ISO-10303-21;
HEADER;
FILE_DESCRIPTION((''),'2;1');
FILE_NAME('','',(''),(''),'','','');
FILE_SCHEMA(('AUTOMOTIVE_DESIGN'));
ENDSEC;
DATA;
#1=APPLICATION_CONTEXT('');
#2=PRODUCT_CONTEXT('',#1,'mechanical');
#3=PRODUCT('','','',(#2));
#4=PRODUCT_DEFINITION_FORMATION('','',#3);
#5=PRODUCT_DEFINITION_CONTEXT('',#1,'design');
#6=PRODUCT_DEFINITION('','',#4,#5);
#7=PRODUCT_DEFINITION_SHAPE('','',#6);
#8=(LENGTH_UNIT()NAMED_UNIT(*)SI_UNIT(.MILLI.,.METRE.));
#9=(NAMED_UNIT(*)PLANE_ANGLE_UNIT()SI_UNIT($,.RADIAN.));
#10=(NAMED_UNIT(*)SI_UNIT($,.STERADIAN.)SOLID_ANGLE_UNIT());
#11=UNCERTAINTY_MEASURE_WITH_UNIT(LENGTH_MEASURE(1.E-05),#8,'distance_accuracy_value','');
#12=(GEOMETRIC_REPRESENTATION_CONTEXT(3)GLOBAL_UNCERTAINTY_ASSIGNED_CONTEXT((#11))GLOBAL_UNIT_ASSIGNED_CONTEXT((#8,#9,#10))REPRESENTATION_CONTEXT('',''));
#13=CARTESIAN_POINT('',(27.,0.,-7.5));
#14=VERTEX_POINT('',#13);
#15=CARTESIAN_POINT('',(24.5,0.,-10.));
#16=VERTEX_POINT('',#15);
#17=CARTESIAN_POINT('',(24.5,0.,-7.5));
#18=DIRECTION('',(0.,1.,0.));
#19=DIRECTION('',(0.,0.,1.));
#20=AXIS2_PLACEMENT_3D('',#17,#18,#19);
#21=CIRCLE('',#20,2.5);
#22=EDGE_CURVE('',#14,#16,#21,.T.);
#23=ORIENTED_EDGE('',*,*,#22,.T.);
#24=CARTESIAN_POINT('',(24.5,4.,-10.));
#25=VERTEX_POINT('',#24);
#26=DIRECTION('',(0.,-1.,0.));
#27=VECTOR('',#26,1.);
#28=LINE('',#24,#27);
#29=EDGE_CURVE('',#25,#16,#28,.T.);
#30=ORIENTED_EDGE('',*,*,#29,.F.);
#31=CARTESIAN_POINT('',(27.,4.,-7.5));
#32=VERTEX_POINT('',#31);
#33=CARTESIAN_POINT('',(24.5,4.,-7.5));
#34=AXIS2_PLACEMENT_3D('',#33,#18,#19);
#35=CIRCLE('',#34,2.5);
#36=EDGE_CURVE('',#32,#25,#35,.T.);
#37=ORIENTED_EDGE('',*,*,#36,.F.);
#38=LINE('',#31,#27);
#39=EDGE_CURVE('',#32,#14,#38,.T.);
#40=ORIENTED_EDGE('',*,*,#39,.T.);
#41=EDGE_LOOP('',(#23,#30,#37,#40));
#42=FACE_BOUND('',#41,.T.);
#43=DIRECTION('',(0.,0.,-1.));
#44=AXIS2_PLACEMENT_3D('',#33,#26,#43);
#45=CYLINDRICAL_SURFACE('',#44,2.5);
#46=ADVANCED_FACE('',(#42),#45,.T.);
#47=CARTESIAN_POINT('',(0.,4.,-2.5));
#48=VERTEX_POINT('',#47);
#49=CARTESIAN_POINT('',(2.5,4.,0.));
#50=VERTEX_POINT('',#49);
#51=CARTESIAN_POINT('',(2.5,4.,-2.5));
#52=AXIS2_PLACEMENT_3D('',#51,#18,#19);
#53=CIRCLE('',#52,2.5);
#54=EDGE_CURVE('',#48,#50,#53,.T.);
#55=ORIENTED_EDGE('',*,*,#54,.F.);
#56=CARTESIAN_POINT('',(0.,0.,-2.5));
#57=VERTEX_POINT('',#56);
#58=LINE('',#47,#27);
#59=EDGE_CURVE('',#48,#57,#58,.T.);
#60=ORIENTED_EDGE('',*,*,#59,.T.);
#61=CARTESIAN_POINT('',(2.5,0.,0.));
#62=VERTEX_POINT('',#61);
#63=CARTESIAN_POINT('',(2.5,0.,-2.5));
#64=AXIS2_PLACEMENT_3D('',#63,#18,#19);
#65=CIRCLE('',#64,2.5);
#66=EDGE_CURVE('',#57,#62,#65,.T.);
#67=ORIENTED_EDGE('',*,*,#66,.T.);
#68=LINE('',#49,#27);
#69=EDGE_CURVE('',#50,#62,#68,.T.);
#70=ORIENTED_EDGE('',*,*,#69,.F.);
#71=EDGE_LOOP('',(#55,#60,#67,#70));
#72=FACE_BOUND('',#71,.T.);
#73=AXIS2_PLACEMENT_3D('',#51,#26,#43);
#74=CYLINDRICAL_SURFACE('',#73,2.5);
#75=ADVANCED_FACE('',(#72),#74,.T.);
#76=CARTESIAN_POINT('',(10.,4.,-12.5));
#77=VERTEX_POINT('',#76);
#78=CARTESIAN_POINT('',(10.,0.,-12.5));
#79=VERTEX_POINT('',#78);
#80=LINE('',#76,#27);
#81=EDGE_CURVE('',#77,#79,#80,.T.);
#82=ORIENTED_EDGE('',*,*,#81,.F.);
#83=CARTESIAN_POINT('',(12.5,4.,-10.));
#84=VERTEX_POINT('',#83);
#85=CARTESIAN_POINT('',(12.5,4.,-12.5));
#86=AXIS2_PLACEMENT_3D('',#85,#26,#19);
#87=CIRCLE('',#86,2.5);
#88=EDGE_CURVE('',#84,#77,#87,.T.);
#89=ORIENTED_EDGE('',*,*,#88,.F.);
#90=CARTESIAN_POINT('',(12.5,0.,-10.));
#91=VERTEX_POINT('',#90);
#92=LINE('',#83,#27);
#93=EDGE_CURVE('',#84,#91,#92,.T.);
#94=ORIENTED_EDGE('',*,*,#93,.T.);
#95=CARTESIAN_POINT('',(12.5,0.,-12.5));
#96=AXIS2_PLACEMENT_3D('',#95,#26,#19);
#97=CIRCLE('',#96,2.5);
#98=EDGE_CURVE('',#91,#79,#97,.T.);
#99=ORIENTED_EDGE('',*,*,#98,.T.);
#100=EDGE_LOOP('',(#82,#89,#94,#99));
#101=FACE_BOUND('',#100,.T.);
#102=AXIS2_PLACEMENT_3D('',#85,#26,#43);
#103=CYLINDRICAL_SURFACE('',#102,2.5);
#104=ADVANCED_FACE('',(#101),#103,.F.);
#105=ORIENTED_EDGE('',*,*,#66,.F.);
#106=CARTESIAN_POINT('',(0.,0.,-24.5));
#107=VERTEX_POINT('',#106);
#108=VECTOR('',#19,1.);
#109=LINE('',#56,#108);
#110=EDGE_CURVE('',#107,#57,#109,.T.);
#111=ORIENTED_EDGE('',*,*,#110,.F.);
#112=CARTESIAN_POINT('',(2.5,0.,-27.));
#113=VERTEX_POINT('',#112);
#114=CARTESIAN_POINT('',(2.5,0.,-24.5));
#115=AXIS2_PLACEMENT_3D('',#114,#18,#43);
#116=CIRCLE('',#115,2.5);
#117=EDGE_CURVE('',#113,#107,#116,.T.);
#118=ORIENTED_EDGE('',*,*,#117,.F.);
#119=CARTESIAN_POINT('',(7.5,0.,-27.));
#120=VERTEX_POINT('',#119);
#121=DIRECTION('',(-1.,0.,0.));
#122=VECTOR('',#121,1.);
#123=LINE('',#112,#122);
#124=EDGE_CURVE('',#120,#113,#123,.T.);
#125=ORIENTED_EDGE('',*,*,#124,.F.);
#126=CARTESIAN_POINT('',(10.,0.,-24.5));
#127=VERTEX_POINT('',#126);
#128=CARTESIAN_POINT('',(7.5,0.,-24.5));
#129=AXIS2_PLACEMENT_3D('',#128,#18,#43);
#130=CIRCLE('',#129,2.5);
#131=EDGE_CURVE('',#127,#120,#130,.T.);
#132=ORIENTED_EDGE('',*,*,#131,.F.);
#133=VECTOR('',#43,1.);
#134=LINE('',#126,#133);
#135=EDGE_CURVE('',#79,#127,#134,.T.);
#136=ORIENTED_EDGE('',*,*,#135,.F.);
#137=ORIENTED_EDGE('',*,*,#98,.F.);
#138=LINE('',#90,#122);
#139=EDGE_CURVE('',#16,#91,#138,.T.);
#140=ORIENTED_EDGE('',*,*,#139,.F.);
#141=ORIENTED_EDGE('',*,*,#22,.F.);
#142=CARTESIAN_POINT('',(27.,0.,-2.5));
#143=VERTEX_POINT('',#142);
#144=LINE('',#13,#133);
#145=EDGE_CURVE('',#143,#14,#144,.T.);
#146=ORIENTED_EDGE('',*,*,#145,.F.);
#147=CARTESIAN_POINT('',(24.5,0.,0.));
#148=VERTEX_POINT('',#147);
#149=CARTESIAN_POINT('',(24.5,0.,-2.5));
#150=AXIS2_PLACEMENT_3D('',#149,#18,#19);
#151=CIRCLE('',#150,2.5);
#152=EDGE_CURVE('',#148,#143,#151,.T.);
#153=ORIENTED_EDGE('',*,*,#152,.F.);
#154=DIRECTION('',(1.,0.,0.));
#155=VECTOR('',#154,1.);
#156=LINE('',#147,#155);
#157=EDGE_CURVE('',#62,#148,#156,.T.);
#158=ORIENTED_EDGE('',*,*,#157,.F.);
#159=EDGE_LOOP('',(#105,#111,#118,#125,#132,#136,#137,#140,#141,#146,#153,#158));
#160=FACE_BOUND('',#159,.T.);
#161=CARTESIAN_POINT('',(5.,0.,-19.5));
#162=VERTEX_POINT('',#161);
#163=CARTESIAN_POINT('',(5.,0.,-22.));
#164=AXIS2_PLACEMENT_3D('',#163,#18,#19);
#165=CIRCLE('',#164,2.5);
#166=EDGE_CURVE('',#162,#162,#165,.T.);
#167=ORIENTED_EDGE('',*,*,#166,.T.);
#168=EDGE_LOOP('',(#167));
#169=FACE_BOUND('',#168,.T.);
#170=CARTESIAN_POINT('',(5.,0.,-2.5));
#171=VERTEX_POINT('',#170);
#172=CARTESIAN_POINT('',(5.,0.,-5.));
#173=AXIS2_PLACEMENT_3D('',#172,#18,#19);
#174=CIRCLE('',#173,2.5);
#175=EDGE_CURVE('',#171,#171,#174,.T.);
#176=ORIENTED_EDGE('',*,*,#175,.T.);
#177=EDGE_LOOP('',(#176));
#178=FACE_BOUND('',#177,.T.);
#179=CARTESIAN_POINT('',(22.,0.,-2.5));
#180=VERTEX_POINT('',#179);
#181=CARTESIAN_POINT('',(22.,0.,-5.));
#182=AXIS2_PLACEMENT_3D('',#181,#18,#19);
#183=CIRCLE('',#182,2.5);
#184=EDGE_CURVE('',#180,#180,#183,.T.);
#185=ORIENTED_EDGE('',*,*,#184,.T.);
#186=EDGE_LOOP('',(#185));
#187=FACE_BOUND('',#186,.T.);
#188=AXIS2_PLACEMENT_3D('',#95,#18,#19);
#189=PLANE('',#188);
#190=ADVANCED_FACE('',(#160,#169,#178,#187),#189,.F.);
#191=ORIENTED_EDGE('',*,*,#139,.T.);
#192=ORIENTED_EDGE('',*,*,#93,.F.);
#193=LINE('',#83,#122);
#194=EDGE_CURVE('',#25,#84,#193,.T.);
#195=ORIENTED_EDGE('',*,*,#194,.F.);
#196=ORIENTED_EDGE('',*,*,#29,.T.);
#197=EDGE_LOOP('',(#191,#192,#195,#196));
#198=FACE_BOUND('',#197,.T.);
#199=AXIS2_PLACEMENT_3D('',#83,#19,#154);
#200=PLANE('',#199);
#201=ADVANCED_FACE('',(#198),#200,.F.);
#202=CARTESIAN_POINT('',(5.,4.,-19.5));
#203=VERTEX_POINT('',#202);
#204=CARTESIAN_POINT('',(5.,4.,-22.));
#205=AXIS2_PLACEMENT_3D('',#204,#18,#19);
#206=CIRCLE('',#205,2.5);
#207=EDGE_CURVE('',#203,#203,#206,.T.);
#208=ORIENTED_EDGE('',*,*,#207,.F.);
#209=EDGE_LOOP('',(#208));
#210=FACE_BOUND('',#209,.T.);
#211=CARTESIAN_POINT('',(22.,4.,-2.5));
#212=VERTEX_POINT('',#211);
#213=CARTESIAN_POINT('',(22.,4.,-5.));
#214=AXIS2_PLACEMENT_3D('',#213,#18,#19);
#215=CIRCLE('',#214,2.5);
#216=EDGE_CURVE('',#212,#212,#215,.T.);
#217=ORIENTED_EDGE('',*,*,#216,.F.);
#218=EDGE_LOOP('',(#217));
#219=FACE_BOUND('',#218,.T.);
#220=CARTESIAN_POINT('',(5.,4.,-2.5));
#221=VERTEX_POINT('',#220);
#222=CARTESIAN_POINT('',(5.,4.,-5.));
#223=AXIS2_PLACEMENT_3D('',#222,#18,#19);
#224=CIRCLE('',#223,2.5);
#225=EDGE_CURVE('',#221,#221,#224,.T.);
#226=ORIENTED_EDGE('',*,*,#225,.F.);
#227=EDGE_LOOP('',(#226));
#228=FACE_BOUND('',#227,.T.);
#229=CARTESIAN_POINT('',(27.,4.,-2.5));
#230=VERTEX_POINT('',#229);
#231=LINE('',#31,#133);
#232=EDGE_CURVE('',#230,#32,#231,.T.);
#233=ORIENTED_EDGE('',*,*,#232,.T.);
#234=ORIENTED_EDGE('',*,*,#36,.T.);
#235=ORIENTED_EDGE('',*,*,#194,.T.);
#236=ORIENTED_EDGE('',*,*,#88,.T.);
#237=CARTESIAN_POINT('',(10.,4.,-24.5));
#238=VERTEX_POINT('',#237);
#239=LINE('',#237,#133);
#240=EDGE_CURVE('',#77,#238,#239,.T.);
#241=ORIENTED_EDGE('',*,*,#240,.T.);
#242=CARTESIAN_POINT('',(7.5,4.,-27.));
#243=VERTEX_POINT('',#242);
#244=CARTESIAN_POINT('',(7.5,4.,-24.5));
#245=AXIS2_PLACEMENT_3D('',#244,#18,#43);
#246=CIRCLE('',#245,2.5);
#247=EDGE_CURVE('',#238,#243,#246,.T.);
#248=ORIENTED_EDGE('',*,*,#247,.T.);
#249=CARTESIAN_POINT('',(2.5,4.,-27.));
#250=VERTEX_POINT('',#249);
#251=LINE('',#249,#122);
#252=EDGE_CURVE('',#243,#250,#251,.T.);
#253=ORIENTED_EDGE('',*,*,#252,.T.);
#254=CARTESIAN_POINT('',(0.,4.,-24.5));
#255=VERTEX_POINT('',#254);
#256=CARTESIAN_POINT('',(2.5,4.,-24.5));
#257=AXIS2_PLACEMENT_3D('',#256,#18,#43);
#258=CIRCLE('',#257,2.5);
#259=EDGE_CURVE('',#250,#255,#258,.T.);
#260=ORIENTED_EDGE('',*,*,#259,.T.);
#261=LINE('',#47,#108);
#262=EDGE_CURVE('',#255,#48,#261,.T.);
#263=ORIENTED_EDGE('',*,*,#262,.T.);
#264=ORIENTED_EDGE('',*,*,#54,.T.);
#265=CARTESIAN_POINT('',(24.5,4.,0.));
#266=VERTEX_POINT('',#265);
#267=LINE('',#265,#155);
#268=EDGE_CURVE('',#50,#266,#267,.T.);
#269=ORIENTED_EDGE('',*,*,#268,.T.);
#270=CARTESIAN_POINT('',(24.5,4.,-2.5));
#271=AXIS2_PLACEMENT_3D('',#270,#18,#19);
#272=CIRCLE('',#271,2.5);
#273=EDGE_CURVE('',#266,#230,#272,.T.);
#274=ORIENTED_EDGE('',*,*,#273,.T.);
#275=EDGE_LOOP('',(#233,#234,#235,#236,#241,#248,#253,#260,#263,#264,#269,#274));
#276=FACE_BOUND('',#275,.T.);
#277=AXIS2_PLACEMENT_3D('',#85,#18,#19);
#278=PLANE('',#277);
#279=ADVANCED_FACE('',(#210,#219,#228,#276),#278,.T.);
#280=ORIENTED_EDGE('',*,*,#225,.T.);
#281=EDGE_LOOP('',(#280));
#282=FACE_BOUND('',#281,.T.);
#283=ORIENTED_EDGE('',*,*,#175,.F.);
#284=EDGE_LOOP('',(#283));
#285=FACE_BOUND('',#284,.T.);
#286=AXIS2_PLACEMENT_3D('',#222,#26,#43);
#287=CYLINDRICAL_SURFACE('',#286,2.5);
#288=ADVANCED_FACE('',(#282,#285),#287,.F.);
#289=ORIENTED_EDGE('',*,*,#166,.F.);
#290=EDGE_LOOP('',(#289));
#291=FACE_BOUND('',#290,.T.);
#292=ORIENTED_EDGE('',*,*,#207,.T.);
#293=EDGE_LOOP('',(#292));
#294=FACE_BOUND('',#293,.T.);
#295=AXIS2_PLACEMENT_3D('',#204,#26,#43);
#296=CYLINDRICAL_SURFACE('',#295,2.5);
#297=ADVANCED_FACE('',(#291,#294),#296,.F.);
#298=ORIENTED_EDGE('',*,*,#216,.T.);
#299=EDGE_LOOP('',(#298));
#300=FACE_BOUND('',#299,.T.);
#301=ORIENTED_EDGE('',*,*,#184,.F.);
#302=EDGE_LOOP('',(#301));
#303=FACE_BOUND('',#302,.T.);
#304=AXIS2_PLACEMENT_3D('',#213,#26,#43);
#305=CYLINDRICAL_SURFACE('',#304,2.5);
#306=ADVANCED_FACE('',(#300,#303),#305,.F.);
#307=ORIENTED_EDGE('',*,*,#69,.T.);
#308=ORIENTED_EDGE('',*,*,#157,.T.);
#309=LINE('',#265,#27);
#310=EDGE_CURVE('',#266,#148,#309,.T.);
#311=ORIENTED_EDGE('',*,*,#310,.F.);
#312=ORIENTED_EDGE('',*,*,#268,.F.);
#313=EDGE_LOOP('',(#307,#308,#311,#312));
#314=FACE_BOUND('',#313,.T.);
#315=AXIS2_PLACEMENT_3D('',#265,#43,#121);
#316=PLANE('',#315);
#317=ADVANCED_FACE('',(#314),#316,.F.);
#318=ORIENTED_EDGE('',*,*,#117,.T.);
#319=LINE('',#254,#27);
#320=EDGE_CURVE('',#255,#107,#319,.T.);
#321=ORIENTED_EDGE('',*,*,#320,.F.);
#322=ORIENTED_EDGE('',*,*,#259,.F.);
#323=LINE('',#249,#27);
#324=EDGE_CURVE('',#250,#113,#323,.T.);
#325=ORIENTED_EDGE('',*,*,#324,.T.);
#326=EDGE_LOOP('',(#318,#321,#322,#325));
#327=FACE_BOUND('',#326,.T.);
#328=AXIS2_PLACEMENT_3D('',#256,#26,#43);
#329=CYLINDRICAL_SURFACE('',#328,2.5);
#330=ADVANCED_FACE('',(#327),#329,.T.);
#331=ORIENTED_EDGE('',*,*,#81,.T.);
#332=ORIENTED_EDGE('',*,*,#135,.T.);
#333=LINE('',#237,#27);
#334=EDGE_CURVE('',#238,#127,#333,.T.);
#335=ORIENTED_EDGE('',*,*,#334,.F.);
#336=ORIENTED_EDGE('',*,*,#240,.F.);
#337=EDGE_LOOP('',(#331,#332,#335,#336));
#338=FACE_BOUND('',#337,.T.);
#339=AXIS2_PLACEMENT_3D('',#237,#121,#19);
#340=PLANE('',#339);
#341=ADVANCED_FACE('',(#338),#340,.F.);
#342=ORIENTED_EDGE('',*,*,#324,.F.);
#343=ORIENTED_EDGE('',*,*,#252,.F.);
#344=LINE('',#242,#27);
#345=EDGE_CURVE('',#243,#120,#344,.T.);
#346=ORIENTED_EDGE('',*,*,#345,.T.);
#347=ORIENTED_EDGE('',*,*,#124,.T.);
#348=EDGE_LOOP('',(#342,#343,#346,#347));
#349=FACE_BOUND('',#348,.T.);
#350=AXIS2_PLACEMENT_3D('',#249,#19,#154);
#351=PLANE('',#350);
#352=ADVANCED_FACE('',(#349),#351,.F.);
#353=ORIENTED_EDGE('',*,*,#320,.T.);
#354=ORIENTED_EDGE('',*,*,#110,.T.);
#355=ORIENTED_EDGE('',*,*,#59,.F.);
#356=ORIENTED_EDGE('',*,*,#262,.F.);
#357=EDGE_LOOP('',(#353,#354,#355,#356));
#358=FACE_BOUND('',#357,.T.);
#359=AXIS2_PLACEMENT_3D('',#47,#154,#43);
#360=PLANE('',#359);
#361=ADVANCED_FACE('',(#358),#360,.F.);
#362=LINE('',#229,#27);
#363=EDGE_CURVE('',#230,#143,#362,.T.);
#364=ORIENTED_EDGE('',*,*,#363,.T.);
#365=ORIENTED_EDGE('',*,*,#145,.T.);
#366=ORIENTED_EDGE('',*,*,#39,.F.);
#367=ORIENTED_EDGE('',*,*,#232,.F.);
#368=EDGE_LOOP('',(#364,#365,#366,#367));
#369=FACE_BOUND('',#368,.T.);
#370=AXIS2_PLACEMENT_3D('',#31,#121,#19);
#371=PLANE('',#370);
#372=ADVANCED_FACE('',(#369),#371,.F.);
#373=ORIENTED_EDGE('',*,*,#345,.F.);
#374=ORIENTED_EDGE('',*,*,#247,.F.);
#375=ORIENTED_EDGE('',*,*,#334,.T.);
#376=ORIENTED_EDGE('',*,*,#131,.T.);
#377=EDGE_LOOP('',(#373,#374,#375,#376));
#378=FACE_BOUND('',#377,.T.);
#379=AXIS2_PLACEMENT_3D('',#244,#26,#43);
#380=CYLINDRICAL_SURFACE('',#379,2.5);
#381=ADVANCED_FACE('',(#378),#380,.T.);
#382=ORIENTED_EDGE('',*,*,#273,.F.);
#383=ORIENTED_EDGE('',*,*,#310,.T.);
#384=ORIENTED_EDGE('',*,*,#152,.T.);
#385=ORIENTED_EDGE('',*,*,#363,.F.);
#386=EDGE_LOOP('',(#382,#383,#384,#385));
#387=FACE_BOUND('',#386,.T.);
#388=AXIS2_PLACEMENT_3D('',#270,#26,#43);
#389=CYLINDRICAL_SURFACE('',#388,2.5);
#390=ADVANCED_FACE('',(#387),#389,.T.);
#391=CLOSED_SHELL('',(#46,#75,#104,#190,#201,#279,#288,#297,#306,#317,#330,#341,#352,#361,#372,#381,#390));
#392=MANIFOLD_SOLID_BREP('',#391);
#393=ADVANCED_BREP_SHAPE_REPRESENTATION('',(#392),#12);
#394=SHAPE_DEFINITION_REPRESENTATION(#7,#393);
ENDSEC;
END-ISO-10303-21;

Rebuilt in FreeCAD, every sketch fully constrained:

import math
import FreeCAD as App
import Part
import Sketcher
Q = App.Units.Quantity

doc = App.newDocument("Part")
body = doc.addObject("PartDesign::Body", "Body")

# Sketch on XZ plane
sketch1 = doc.addObject("Sketcher::SketchObject", "Sketch")
body.addObject(sketch1)
sketch1.AttachmentSupport = (doc.XZ_Plane, [""])
sketch1.MapMode = "FlatFace"
sketch1.addGeometry([
    Part.LineSegment(App.Vector(0, -24.5, 0), App.Vector(0, -2.5, 0)),  # 0
    Part.ArcOfCircle(Part.Circle(App.Vector(2.5, -2.5, 0), App.Vector(0, 0, 1), 2.5), math.radians(90), math.radians(180)),  # 1
    Part.LineSegment(App.Vector(2.5, 0, 0), App.Vector(24.5, 0, 0)),  # 2
    Part.ArcOfCircle(Part.Circle(App.Vector(24.5, -2.5, 0), App.Vector(0, 0, 1), 2.5), math.radians(0), math.radians(90)),  # 3
    Part.LineSegment(App.Vector(27, -2.5, 0), App.Vector(27, -7.5, 0)),  # 4
    Part.ArcOfCircle(Part.Circle(App.Vector(24.5, -7.5, 0), App.Vector(0, 0, 1), 2.5), math.radians(-90), math.radians(0)),  # 5
    Part.LineSegment(App.Vector(24.5, -10, 0), App.Vector(12.5, -10, 0)),  # 6
    Part.ArcOfCircle(Part.Circle(App.Vector(12.5, -12.5, 0), App.Vector(0, 0, 1), 2.5), math.radians(90), math.radians(180)),  # 7
    Part.LineSegment(App.Vector(10, -12.5, 0), App.Vector(10, -24.5, 0)),  # 8
    Part.ArcOfCircle(Part.Circle(App.Vector(7.5, -24.5, 0), App.Vector(0, 0, 1), 2.5), math.radians(-90), math.radians(0)),  # 9
    Part.LineSegment(App.Vector(7.5, -27, 0), App.Vector(2.5, -27, 0)),  # 10
    Part.ArcOfCircle(Part.Circle(App.Vector(2.5, -24.5, 0), App.Vector(0, 0, 1), 2.5), math.radians(180), math.radians(270)),  # 11
    Part.Circle(App.Vector(22, -5, 0), App.Vector(0, 0, 1), 2.5),  # 12
    Part.Circle(App.Vector(5, -5, 0), App.Vector(0, 0, 1), 2.5),  # 13
    Part.Circle(App.Vector(5, -22, 0), App.Vector(0, 0, 1), 2.5),  # 14
], False)
sketch1.addConstraint([
    Sketcher.Constraint("Tangent", 0, 2, 1, 2),
    Sketcher.Constraint("Tangent", 1, 1, 2, 1),
    Sketcher.Constraint("Tangent", 2, 2, 3, 2),
    Sketcher.Constraint("Tangent", 3, 1, 4, 1),
    Sketcher.Constraint("Tangent", 4, 2, 5, 2),
    Sketcher.Constraint("Tangent", 5, 1, 6, 1),
    Sketcher.Constraint("Tangent", 6, 2, 7, 1),
    Sketcher.Constraint("Tangent", 7, 2, 8, 1),
    Sketcher.Constraint("Tangent", 8, 2, 9, 2),
    Sketcher.Constraint("Tangent", 9, 1, 10, 1),
    Sketcher.Constraint("Tangent", 10, 2, 11, 2),
    Sketcher.Constraint("Tangent", 11, 1, 0, 1),
    Sketcher.Constraint("Vertical", 0),
    Sketcher.Constraint("Horizontal", 2),
    Sketcher.Constraint("Vertical", 4),
    Sketcher.Constraint("Horizontal", 6),
    Sketcher.Constraint("Vertical", 8),
    Sketcher.Constraint("Horizontal", 10),
    Sketcher.Constraint("Equal", 1, 3),
    Sketcher.Constraint("Equal", 3, 5),
    Sketcher.Constraint("Equal", 5, 7),
    Sketcher.Constraint("Equal", 7, 9),
    Sketcher.Constraint("Equal", 9, 11),
    Sketcher.Constraint("Equal", 11, 12),
    Sketcher.Constraint("Equal", 12, 13),
    Sketcher.Constraint("Equal", 13, 14),
    Sketcher.Constraint("PointOnObject", 0, 2, -2),
    Sketcher.Constraint("PointOnObject", 1, 1, -1),
    Sketcher.Constraint("Horizontal", 12, 3, 13, 3),
    Sketcher.Constraint("Vertical", 13, 3, 14, 3),
    Sketcher.Constraint("Equal", 2, 0),
    Sketcher.Constraint("Equal", 10, 4),
    Sketcher.Constraint("Diameter", 12, Q("5 mm")),
    Sketcher.Constraint("DistanceX", 2, 1, 2, 2, Q("22 mm")),
    Sketcher.Constraint("DistanceX", 6, 2, 6, 1, Q("12 mm")),
    Sketcher.Constraint("DistanceX", -1, 1, 12, 3, Q("22 mm")),
    Sketcher.Constraint("DistanceY", 12, 3, -1, 1, Q("5 mm")),
    Sketcher.Constraint("DistanceX", -1, 1, 13, 3, Q("5 mm")),
    Sketcher.Constraint("DistanceY", 14, 3, -1, 1, Q("22 mm")),
])
pad1 = doc.addObject("PartDesign::Pad", "Pad")
body.addObject(pad1)
pad1.Profile = sketch1
pad1.Length = 4
pad1.Reversed = True

doc.recompute()
